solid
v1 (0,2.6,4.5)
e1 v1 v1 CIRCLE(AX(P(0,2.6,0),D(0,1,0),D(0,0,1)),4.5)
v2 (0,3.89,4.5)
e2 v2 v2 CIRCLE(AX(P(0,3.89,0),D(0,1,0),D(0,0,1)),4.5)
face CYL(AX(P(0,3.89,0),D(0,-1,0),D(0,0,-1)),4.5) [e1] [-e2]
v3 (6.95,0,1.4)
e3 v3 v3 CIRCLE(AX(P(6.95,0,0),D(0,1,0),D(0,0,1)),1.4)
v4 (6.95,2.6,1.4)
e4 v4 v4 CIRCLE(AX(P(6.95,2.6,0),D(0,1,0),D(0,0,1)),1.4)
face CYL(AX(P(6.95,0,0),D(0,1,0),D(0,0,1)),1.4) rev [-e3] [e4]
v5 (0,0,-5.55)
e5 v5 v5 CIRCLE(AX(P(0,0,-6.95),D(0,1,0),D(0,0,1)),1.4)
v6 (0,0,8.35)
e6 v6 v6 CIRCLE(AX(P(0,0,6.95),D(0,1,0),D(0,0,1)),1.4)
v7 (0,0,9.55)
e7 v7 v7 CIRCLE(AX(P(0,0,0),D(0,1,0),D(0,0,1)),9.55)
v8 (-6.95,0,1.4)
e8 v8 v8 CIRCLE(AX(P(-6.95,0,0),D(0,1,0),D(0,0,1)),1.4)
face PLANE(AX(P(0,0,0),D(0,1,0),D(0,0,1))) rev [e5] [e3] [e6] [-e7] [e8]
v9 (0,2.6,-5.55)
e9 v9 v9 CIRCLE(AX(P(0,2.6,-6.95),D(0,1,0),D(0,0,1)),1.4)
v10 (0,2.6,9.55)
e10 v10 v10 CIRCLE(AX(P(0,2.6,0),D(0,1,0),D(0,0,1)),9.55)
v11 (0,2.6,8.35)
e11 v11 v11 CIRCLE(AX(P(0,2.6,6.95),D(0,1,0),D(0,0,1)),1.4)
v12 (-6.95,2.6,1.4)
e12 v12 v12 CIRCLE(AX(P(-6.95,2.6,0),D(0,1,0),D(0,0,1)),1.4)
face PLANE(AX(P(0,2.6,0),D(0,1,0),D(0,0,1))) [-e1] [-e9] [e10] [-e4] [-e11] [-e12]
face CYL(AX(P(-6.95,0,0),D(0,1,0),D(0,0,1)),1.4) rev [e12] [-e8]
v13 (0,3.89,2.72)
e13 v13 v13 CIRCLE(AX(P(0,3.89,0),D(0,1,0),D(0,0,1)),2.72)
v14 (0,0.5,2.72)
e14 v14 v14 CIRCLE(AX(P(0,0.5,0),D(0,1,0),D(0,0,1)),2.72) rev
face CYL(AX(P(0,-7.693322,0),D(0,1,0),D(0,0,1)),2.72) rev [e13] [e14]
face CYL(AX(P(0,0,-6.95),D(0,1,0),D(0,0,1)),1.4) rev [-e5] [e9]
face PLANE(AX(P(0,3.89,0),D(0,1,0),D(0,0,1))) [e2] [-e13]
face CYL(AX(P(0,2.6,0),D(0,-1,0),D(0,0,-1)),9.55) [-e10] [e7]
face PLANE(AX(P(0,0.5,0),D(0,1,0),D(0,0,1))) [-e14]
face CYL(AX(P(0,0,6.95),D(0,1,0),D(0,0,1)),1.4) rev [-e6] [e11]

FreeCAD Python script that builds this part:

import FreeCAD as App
import Part
import Sketcher
from FreeCAD import Vector
Q = App.Units.Quantity

doc = App.newDocument("Part")
body = doc.addObject("PartDesign::Body", "Body")

sketch1 = body.newObject("Sketcher::SketchObject", "Sketch")
sketch1.AttachmentSupport = (doc.getObject("XZ_Plane"), [""])
sketch1.MapMode = "FlatFace"
sketch1.addGeometry(Part.Circle(Vector(0, 0, 0), Vector(0, 0, 1), 10), False)
sketch1.addConstraint([
    Sketcher.Constraint("Coincident", 0, 3, -1, 1),
    Sketcher.Constraint("Diameter", 0, Q("19.1 mm")),
])
pad1 = body.newObject("PartDesign::Pad", "Pad")
pad1.Profile = sketch1
pad1.Length = 2.6
pad1.Reversed = True

sketch2 = body.newObject("Sketcher::SketchObject", "Sketch001")
sketch2.AttachmentSupport = (doc.getObject("XZ_Plane"), [""])
sketch2.MapMode = "FlatFace"
sketch2.AttachmentOffset = App.Placement(Vector(0, 0, -2.6), App.Rotation())
sketch2.addGeometry(Part.Circle(Vector(0, 0, 0), Vector(0, 0, 1), 4.5), False)
sketch2.addConstraint([
    Sketcher.Constraint("Coincident", 0, 3, -1, 1),
    Sketcher.Constraint("Diameter", 0, Q("9 mm")),
])
pad2 = body.newObject("PartDesign::Pad", "Pad001")
pad2.Profile = sketch2
pad2.Length = 1.29
pad2.Reversed = True

sketch3 = body.newObject("Sketcher::SketchObject", "Sketch002")
sketch3.AttachmentSupport = (doc.getObject("XZ_Plane"), [""])
sketch3.MapMode = "FlatFace"
sketch3.AttachmentOffset = App.Placement(Vector(0, 0, -3.89), App.Rotation())
sketch3.addGeometry(Part.Circle(Vector(0, 0, 0), Vector(0, 0, 1), 2.7), False)
sketch3.addConstraint([
    Sketcher.Constraint("Coincident", 0, 3, -1, 1),
    Sketcher.Constraint("Diameter", 0, Q("5.44 mm")),
])
pocket1 = body.newObject("PartDesign::Pocket", "Pocket")
pocket1.Profile = sketch3
pocket1.Type = "TwoLengths"
pocket1.Length = 15.054789
pocket1.Length2 = 3.39

sketch4 = body.newObject("Sketcher::SketchObject", "Sketch003")
sketch4.AttachmentSupport = (doc.getObject("XZ_Plane"), [""])
sketch4.MapMode = "FlatFace"
sketch4.AttachmentOffset = App.Placement(Vector(0, 0, -2.6), App.Rotation())
sketch4.addGeometry([
    Part.Circle(Vector(0, -7, 0), Vector(0, 0, 1), 1.4),
    Part.Circle(Vector(7, 0, 0), Vector(0, 0, 1), 1.4),
    Part.Circle(Vector(0, 7, 0), Vector(0, 0, 1), 1.4),
    Part.Circle(Vector(-7, 0, 0), Vector(0, 0, 1), 1.4),
], False)
sketch4.addConstraint([
    Sketcher.Constraint("Equal", 0, 1),
    Sketcher.Constraint("Equal", 1, 2),
    Sketcher.Constraint("Equal", 2, 3),
    Sketcher.Constraint("Symmetric", 0, 3, 2, 3, -1, 1),
    Sketcher.Constraint("Symmetric", 1, 3, 3, 3, -1, 1),
    Sketcher.Constraint("PointOnObject", 0, 3, -2),
    Sketcher.Constraint("PointOnObject", 1, 3, -1),
    Sketcher.Constraint("Diameter", 0, Q("2.8 mm")),
    Sketcher.Constraint("DistanceY", 0, 3, 2, 3, Q("13.9 mm")),
    Sketcher.Constraint("DistanceX", 3, 3, 1, 3, Q("13.9 mm")),
])
pocket2 = body.newObject("PartDesign::Pocket", "Pocket001")
pocket2.Profile = sketch4
pocket2.Type = "ThroughAll"
pocket2.Reversed = True

doc.recompute()
